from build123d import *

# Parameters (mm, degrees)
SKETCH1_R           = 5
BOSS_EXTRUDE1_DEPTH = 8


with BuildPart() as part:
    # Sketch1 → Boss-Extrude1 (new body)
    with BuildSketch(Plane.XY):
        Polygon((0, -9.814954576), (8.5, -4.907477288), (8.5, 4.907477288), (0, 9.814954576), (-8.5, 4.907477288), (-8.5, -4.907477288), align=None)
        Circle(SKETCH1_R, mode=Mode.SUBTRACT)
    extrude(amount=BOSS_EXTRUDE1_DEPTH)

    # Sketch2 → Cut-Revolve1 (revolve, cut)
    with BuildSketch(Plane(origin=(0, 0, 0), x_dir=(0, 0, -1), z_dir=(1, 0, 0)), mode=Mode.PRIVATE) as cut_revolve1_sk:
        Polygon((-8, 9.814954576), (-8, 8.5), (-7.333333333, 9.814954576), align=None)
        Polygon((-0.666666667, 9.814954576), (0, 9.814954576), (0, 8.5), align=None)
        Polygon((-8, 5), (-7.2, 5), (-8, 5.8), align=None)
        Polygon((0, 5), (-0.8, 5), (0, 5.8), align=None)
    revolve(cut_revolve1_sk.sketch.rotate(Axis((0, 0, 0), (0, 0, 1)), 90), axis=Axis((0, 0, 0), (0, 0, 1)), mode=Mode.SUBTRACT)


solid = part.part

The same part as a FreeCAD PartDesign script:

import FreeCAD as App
import Part
import Sketcher
from FreeCAD import Vector
Q = App.Units.Quantity

doc = App.newDocument("Part")
params = doc.addObject("Spreadsheet::Sheet", "Params")
for row, (alias, value) in enumerate([
    ("sketch1_diameter", "10 mm"),
    ("pad1_length", "8 mm"),
    ("sketch2_width", "0.8 mm"),
    ("groove_angle", "360 deg"),
], start=1):
    params.set(f"A{row}", alias)
    params.set(f"B{row}", "=" + value)
    params.setAlias(f"B{row}", alias)

body = doc.addObject("PartDesign::Body", "Body")

sketch1 = body.newObject("Sketcher::SketchObject", "Sketch")
sketch1.AttachmentSupport = (doc.getObject("XY_Plane"), [""])
sketch1.MapMode = "FlatFace"
sketch1.addGeometry([
    Part.LineSegment(Vector(0, -10, 0), Vector(8, -5, 0)),
    Part.LineSegment(Vector(8, -5, 0), Vector(8, 5, 0)),
    Part.LineSegment(Vector(8, 5, 0), Vector(0, 10, 0)),
    Part.LineSegment(Vector(0, 10, 0), Vector(-8, 5, 0)),
    Part.LineSegment(Vector(-8, 5, 0), Vector(-8, -5, 0)),
    Part.LineSegment(Vector(-8, -5, 0), Vector(0, -10, 0)),
    Part.Circle(Vector(0, 0, 0), Vector(0, 0, 1), 5),
], False)
sketch1.addConstraint([
    Sketcher.Constraint("Coincident", 0, 2, 1, 1),
    Sketcher.Constraint("Coincident", 1, 2, 2, 1),
    Sketcher.Constraint("Coincident", 2, 2, 3, 1),
    Sketcher.Constraint("Coincident", 3, 2, 4, 1),
    Sketcher.Constraint("Coincident", 4, 2, 5, 1),
    Sketcher.Constraint("Coincident", 5, 2, 0, 1),
    Sketcher.Constraint("Vertical", 1),
    Sketcher.Constraint("Vertical", 4),
    Sketcher.Constraint("Coincident", 6, 3, -1, 1),
    Sketcher.Constraint("Symmetric", 0, 2, 3, 2, -1, 1),
    Sketcher.Constraint("Symmetric", 2, 2, 5, 2, -1, 1),
    Sketcher.Constraint("PointOnObject", 2, 2, -2),
    Sketcher.Constraint("Parallel", 2, 5),
    Sketcher.Constraint("Horizontal", 1, 2, 3, 2),
    Sketcher.Constraint("Diameter", 6, Q("10 mm")),
    Sketcher.Constraint("Angle", 0, Q("30 deg")),
    Sketcher.Constraint("DistanceX", 3, 2, 1, 2, Q("17 mm")),
    Sketcher.Constraint("DistanceY", 1, 1, 1, 2, Q("9.814955 mm")),
])
sketch1.setExpression("Constraints[14]", "Params.sketch1_diameter")
pad1 = body.newObject("PartDesign::Pad", "Pad")
pad1.Profile = sketch1
pad1.setExpression("Length", "Params.pad1_length")

sketch2 = body.newObject("Sketcher::SketchObject", "Sketch001")
sketch2.AttachmentSupport = (doc.getObject("YZ_Plane"), [""])
sketch2.MapMode = "FlatFace"
sketch2.addGeometry([
    Part.LineSegment(Vector(9.8, 8, 0), Vector(8.5, 8, 0)),
    Part.LineSegment(Vector(8.5, 8, 0), Vector(9.8, 7.3, 0)),
    Part.LineSegment(Vector(9.8, 7.3, 0), Vector(9.8, 8, 0)),
    Part.LineSegment(Vector(9.8, 0, 0), Vector(9.8, 0.7, 0)),
    Part.LineSegment(Vector(9.8, 0.7, 0), Vector(8.5, 0, 0)),
    Part.LineSegment(Vector(8.5, 0, 0), Vector(9.8, 0, 0)),
    Part.LineSegment(Vector(5, 8, 0), Vector(5, 7.2, 0)),
    Part.LineSegment(Vector(5, 7.2, 0), Vector(5.8, 8, 0)),
    Part.LineSegment(Vector(5.8, 8, 0), Vector(5, 8, 0)),
    Part.LineSegment(Vector(5, 0.8, 0), Vector(5, 0, 0)),
    Part.LineSegment(Vector(5, 0, 0), Vector(5.8, 0, 0)),
    Part.LineSegment(Vector(5.8, 0, 0), Vector(5, 0.8, 0)),
], False)
sketch2.addConstraint([
    Sketcher.Constraint("Coincident", 0, 2, 1, 1),
    Sketcher.Constraint("Coincident", 1, 2, 2, 1),
    Sketcher.Constraint("Coincident", 2, 2, 0, 1),
    Sketcher.Constraint("Coincident", 3, 2, 4, 1),
    Sketcher.Constraint("Coincident", 4, 2, 5, 1),
    Sketcher.Constraint("Coincident", 5, 2, 3, 1),
    Sketcher.Constraint("Coincident", 6, 2, 7, 1),
    Sketcher.Constraint("Coincident", 7, 2, 8, 1),
    Sketcher.Constraint("Coincident", 8, 2, 6, 1),
    Sketcher.Constraint("Coincident", 9, 2, 10, 1),
    Sketcher.Constraint("Coincident", 10, 2, 11, 1),
    Sketcher.Constraint("Coincident", 11, 2, 9, 1),
    Sketcher.Constraint("Horizontal", 0),
    Sketcher.Constraint("Vertical", 2),
    Sketcher.Constraint("Vertical", 3),
    Sketcher.Constraint("Horizontal", 5),
    Sketcher.Constraint("Vertical", 6),
    Sketcher.Constraint("Horizontal", 8),
    Sketcher.Constraint("Vertical", 9),
    Sketcher.Constraint("Horizontal", 10),
    Sketcher.Constraint("PointOnObject", 4, 2, -1),
    Sketcher.Constraint("PointOnObject", 9, 2, -1),
    Sketcher.Constraint("Perpendicular", 7, 11),
    Sketcher.Constraint("Horizontal", 2, 2, 7, 2),
    Sketcher.Constraint("Vertical", 2, 2, 3, 2),
    Sketcher.Constraint("Vertical", 0, 2, 4, 2),
    Sketcher.Constraint("Vertical", 8, 2, 9, 2),
    Sketcher.Constraint("Vertical", 7, 2, 10, 2),
    Sketcher.Constraint("Equal", 2, 3),
    Sketcher.Constraint("Equal", 10, 6),
    Sketcher.Constraint("DistanceX", 8, 2, 8, 1, Q("0.8 mm")),
    Sketcher.Constraint("DistanceY", -1, 1, 0, 2, Q("8 mm")),
    Sketcher.Constraint("DistanceX", -1, 1, 6, 2, Q("5 mm")),
    Sketcher.Constraint("DistanceX", -1, 1, 0, 2, Q("8.5 mm")),
    Sketcher.Constraint("DistanceX", 0, 2, 0, 1, Q("1.314955 mm")),
    Sketcher.Constraint("DistanceY", 2, 1, 2, 2, Q("0.666667 mm")),
])
sketch2.setExpression("Constraints[30]", "Params.sketch2_width")
groove = body.newObject("PartDesign::Groove", "Groove")
groove.Profile = sketch2
groove.ReferenceAxis = (sketch2, ["V_Axis"])
groove.setExpression("Angle", "Params.groove_angle")

doc.recompute()
